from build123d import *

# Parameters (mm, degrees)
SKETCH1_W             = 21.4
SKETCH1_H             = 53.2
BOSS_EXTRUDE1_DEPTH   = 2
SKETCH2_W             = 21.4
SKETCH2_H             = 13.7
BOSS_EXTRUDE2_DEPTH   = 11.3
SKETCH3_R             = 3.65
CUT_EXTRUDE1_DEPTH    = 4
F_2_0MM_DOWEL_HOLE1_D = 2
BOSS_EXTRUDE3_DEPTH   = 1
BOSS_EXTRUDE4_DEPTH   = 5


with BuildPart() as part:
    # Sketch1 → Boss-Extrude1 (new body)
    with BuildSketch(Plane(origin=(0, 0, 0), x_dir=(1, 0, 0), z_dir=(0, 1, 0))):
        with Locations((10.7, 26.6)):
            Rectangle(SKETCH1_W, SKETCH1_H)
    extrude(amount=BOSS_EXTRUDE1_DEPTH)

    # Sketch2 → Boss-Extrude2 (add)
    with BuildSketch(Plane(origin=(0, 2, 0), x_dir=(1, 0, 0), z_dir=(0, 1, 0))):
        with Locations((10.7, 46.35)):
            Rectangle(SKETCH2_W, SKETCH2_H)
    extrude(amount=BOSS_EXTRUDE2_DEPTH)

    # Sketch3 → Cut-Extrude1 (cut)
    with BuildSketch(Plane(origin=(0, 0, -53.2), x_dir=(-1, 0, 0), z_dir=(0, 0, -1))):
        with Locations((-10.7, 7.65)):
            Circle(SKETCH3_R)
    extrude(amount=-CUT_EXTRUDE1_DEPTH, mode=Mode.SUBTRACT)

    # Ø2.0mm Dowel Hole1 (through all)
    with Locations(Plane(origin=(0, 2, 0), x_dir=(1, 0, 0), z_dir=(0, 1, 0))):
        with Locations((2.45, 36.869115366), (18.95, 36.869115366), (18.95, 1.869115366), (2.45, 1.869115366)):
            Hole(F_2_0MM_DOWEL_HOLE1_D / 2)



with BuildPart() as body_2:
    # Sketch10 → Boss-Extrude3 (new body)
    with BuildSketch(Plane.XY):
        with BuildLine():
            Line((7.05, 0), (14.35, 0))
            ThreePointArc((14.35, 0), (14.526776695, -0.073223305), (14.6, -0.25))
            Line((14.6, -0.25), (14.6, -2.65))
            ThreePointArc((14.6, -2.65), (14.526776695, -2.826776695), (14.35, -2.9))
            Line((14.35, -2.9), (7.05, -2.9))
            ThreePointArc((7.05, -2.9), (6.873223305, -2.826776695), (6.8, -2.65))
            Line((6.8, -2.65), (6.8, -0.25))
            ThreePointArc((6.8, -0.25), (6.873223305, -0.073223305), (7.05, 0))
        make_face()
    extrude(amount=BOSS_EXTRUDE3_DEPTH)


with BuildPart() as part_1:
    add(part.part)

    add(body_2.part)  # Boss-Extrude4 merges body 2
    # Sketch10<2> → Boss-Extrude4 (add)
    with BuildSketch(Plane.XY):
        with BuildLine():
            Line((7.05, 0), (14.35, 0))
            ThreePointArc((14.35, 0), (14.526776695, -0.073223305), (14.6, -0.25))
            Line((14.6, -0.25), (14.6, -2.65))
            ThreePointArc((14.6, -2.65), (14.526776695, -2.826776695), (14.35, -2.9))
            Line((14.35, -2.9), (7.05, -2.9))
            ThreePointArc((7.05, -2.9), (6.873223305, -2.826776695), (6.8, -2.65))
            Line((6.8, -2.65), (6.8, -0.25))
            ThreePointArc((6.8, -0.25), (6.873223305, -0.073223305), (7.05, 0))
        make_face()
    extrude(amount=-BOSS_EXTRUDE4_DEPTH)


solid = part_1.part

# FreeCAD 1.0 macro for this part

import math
import FreeCAD as App
import Part
import Sketcher
from FreeCAD import Vector

doc = App.newDocument("Part")
body = doc.addObject("PartDesign::Body", "Body")

# Sketch on XZ plane
sketch1 = body.newObject("Sketcher::SketchObject", "Sketch")
sketch1.AttachmentSupport = (doc.getObject("XZ_Plane"), [""])
sketch1.MapMode = "FlatFace"
sketch1.addGeometry([
    Part.LineSegment(Vector(0, -53.2, 0), Vector(0, 0, 0)),
    Part.LineSegment(Vector(0, 0, 0), Vector(21.4, 0, 0)),
    Part.LineSegment(Vector(21.4, 0, 0), Vector(21.4, -53.2, 0)),
    Part.LineSegment(Vector(21.4, -53.2, 0), Vector(0, -53.2, 0)),
], False)
sketch1.addConstraint([
    Sketcher.Constraint("Coincident", 0, 2, 1, 1),
    Sketcher.Constraint("Coincident", 1, 2, 2, 1),
    Sketcher.Constraint("Coincident", 2, 2, 3, 1),
    Sketcher.Constraint("Coincident", 3, 2, 0, 1),
    Sketcher.Constraint("Vertical", 0),
    Sketcher.Constraint("Horizontal", 1),
    Sketcher.Constraint("Vertical", 2),
    Sketcher.Constraint("Horizontal", 3),
    Sketcher.Constraint("Coincident", 0, 2, -1, 1),
    Sketcher.Constraint("DistanceX", 1, 1, 1, 2, 21.4),
    Sketcher.Constraint("DistanceY", 0, 1, 0, 2, 53.2),
])
pad1 = body.newObject("PartDesign::Pad", "Pad")
pad1.Profile = sketch1
pad1.Length = 2
pad1.Reversed = True

# Sketch on XZ plane
sketch2 = body.newObject("Sketcher::SketchObject", "Sketch001")
sketch2.AttachmentSupport = (doc.getObject("XZ_Plane"), [""])
sketch2.MapMode = "FlatFace"
sketch2.AttachmentOffset = App.Placement(Vector(0, 0, -2), App.Rotation())
sketch2.addGeometry([
    Part.LineSegment(Vector(0, -53.2, 0), Vector(0, -39.5, 0)),
    Part.LineSegment(Vector(0, -39.5, 0), Vector(21.4, -39.5, 0)),
    Part.LineSegment(Vector(21.4, -39.5, 0), Vector(21.4, -53.2, 0)),
    Part.LineSegment(Vector(21.4, -53.2, 0), Vector(0, -53.2, 0)),
], False)
sketch2.addConstraint([
    Sketcher.Constraint("Coincident", 0, 2, 1, 1),
    Sketcher.Constraint("Coincident", 1, 2, 2, 1),
    Sketcher.Constraint("Coincident", 2, 2, 3, 1),
    Sketcher.Constraint("Coincident", 3, 2, 0, 1),
    Sketcher.Constraint("Vertical", 0),
    Sketcher.Constraint("Horizontal", 1),
    Sketcher.Constraint("Vertical", 2),
    Sketcher.Constraint("Horizontal", 3),
    Sketcher.Constraint("PointOnObject", 0, 2, -2),
    Sketcher.Constraint("DistanceX", 1, 1, 1, 2, 21.4),
    Sketcher.Constraint("DistanceY", 0, 1, 0, 2, 13.7),
    Sketcher.Constraint("DistanceY", 0, 2, -1, 1, 39.5),
])
pad2 = body.newObject("PartDesign::Pad", "Pad001")
pad2.Profile = sketch2
pad2.Length = 11.3
pad2.Reversed = True

# Sketch on XY plane
sketch3 = body.newObject("Sketcher::SketchObject", "Sketch002")
sketch3.AttachmentSupport = (doc.getObject("XY_Plane"), [""])
sketch3.MapMode = "FlatFace"
sketch3.AttachmentOffset = App.Placement(Vector(0, 0, -53.2), App.Rotation())
sketch3.addGeometry(Part.Circle(Vector(10.7, 7.65, 0), Vector(0, 0, 1), 3.65), False)
sketch3.addConstraint([
    Sketcher.Constraint("Diameter", 0, 7.3),
    Sketcher.Constraint("DistanceX", -1, 1, 0, 3, 10.7),
    Sketcher.Constraint("DistanceY", -1, 1, 0, 3, 7.65),
])
pocket1 = body.newObject("PartDesign::Pocket", "Pocket")
pocket1.Profile = sketch3
pocket1.Length = 4
pocket1.Reversed = True

# Sketch on XZ plane
sketch4 = body.newObject("Sketcher::SketchObject", "Sketch003")
sketch4.AttachmentSupport = (doc.getObject("XZ_Plane"), [""])
sketch4.MapMode = "FlatFace"
sketch4.AttachmentOffset = App.Placement(Vector(0, 0, -2), App.Rotation())
sketch4.addGeometry([
    Part.Circle(Vector(2.45, -36.869115, 0), Vector(0, 0, 1), 1),
    Part.Circle(Vector(18.95, -36.869115, 0), Vector(0, 0, 1), 1),
    Part.Circle(Vector(18.95, -1.869115, 0), Vector(0, 0, 1), 1),
    Part.Circle(Vector(2.45, -1.869115, 0), Vector(0, 0, 1), 1),
], False)
sketch4.addConstraint([
    Sketcher.Constraint("Equal", 0, 1),
    Sketcher.Constraint("Equal", 1, 2),
    Sketcher.Constraint("Equal", 2, 3),
    Sketcher.Constraint("Horizontal", 0, 3, 1, 3),
    Sketcher.Constraint("Horizontal", 2, 3, 3, 3),
    Sketcher.Constraint("Vertical", 1, 3, 2, 3),
    Sketcher.Constraint("Vertical", 0, 3, 3, 3),
    Sketcher.Constraint("Diameter", 0, 2.0),
    Sketcher.Constraint("DistanceY", 1, 3, 2, 3, 35.0),
    Sketcher.Constraint("DistanceX", 0, 3, 1, 3, 16.5),
    Sketcher.Constraint("DistanceX", -1, 1, 0, 3, 2.45),
    Sketcher.Constraint("DistanceY", 0, 3, -1, 1, 36.869115),
])
doc.recompute()
hole = body.newObject("PartDesign::Hole", "Hole")
hole.Profile = sketch4
hole.ThreadType = "None"
hole.Diameter = 2
hole.DepthType = "ThroughAll"
hole.Reversed = True
body2 = doc.addObject("PartDesign::Body", "Body001")

# Sketch on XY plane
sketch5 = body2.newObject("Sketcher::SketchObject", "Sketch004")
sketch5.AttachmentSupport = (doc.getObject("XY_Plane001"), [""])
sketch5.MapMode = "FlatFace"
sketch5.addGeometry([
    Part.LineSegment(Vector(14.35, 0, 0), Vector(7.05, 0, 0)),  # 0
    Part.ArcOfCircle(Part.Circle(Vector(7.05, -0.25, 0), Vector(0, 0, 1), 0.25), math.radians(90), math.radians(180)),  # 1
    Part.LineSegment(Vector(6.8, -0.25, 0), Vector(6.8, -2.65, 0)),  # 2
    Part.ArcOfCircle(Part.Circle(Vector(7.05, -2.65, 0), Vector(0, 0, 1), 0.25), math.radians(-180), math.radians(-90)),  # 3
    Part.LineSegment(Vector(7.05, -2.9, 0), Vector(14.35, -2.9, 0)),  # 4
    Part.ArcOfCircle(Part.Circle(Vector(14.35, -2.65, 0), Vector(0, 0, 1), 0.25), math.radians(-90), math.radians(0)),  # 5
    Part.LineSegment(Vector(14.6, -2.65, 0), Vector(14.6, -0.25, 0)),  # 6
    Part.ArcOfCircle(Part.Circle(Vector(14.35, -0.25, 0), Vector(0, 0, 1), 0.25), math.radians(0), math.radians(90)),  # 7
], False)
sketch5.addConstraint([
    Sketcher.Constraint("Tangent", 0, 2, 1, 1),
    Sketcher.Constraint("Tangent", 1, 2, 2, 1),
    Sketcher.Constraint("Tangent", 2, 2, 3, 1),
    Sketcher.Constraint("Tangent", 3, 2, 4, 1),
    Sketcher.Constraint("Tangent", 4, 2, 5, 1),
    Sketcher.Constraint("Tangent", 5, 2, 6, 1),
    Sketcher.Constraint("Tangent", 6, 2, 7, 1),
    Sketcher.Constraint("Tangent", 7, 2, 0, 1),
    Sketcher.Constraint("Horizontal", 0),
    Sketcher.Constraint("Vertical", 2),
    Sketcher.Constraint("Horizontal", 4),
    Sketcher.Constraint("Vertical", 6),
    Sketcher.Constraint("Equal", 1, 3),
    Sketcher.Constraint("Equal", 3, 5),
    Sketcher.Constraint("Equal", 5, 7),
    Sketcher.Constraint("PointOnObject", 0, 2, -1),
    Sketcher.Constraint("Radius", 1, 0.25),
    Sketcher.Constraint("DistanceX", 0, 2, 0, 1, 7.3),
    Sketcher.Constraint("DistanceY", 2, 2, 2, 1, 2.4),
    Sketcher.Constraint("DistanceX", -1, 1, 1, 2, 6.8),
])
pad3 = body2.newObject("PartDesign::Pad", "Pad002")
pad3.Profile = sketch5
pad3.Length = 1
body.AllowCompound = True
doc.recompute()

boolean = body.newObject("PartDesign::Boolean", "Boolean")
boolean.Type = "Fuse"
boolean.addObjects([body2])

# Sketch on XY plane
sketch6 = body.newObject("Sketcher::SketchObject", "Sketch005")
sketch6.AttachmentSupport = (doc.getObject("XY_Plane"), [""])
sketch6.MapMode = "FlatFace"
sketch6.addGeometry([
    Part.LineSegment(Vector(14.35, 0, 0), Vector(7.05, 0, 0)),  # 0
    Part.ArcOfCircle(Part.Circle(Vector(7.05, -0.25, 0), Vector(0, 0, 1), 0.25), math.radians(90), math.radians(180)),  # 1
    Part.LineSegment(Vector(6.8, -0.25, 0), Vector(6.8, -2.65, 0)),  # 2
    Part.ArcOfCircle(Part.Circle(Vector(7.05, -2.65, 0), Vector(0, 0, 1), 0.25), math.radians(-180), math.radians(-90)),  # 3
    Part.LineSegment(Vector(7.05, -2.9, 0), Vector(14.35, -2.9, 0)),  # 4
    Part.ArcOfCircle(Part.Circle(Vector(14.35, -2.65, 0), Vector(0, 0, 1), 0.25), math.radians(-90), math.radians(0)),  # 5
    Part.LineSegment(Vector(14.6, -2.65, 0), Vector(14.6, -0.25, 0)),  # 6
    Part.ArcOfCircle(Part.Circle(Vector(14.35, -0.25, 0), Vector(0, 0, 1), 0.25), math.radians(0), math.radians(90)),  # 7
], False)
sketch6.addConstraint([
    Sketcher.Constraint("Tangent", 0, 2, 1, 1),
    Sketcher.Constraint("Tangent", 1, 2, 2, 1),
    Sketcher.Constraint("Tangent", 2, 2, 3, 1),
    Sketcher.Constraint("Tangent", 3, 2, 4, 1),
    Sketcher.Constraint("Tangent", 4, 2, 5, 1),
    Sketcher.Constraint("Tangent", 5, 2, 6, 1),
    Sketcher.Constraint("Tangent", 6, 2, 7, 1),
    Sketcher.Constraint("Tangent", 7, 2, 0, 1),
    Sketcher.Constraint("Horizontal", 0),
    Sketcher.Constraint("Vertical", 2),
    Sketcher.Constraint("Horizontal", 4),
    Sketcher.Constraint("Vertical", 6),
    Sketcher.Constraint("Equal", 1, 3),
    Sketcher.Constraint("Equal", 3, 5),
    Sketcher.Constraint("Equal", 5, 7),
    Sketcher.Constraint("PointOnObject", 0, 2, -1),
    Sketcher.Constraint("Radius", 1, 0.25),
    Sketcher.Constraint("DistanceX", 0, 2, 0, 1, 7.3),
    Sketcher.Constraint("DistanceY", 2, 2, 2, 1, 2.4),
    Sketcher.Constraint("DistanceX", -1, 1, 1, 2, 6.8),
])
pad4 = body.newObject("PartDesign::Pad", "Pad003")
pad4.Profile = sketch6
pad4.Length = 5
pad4.Reversed = True

doc.recompute()
